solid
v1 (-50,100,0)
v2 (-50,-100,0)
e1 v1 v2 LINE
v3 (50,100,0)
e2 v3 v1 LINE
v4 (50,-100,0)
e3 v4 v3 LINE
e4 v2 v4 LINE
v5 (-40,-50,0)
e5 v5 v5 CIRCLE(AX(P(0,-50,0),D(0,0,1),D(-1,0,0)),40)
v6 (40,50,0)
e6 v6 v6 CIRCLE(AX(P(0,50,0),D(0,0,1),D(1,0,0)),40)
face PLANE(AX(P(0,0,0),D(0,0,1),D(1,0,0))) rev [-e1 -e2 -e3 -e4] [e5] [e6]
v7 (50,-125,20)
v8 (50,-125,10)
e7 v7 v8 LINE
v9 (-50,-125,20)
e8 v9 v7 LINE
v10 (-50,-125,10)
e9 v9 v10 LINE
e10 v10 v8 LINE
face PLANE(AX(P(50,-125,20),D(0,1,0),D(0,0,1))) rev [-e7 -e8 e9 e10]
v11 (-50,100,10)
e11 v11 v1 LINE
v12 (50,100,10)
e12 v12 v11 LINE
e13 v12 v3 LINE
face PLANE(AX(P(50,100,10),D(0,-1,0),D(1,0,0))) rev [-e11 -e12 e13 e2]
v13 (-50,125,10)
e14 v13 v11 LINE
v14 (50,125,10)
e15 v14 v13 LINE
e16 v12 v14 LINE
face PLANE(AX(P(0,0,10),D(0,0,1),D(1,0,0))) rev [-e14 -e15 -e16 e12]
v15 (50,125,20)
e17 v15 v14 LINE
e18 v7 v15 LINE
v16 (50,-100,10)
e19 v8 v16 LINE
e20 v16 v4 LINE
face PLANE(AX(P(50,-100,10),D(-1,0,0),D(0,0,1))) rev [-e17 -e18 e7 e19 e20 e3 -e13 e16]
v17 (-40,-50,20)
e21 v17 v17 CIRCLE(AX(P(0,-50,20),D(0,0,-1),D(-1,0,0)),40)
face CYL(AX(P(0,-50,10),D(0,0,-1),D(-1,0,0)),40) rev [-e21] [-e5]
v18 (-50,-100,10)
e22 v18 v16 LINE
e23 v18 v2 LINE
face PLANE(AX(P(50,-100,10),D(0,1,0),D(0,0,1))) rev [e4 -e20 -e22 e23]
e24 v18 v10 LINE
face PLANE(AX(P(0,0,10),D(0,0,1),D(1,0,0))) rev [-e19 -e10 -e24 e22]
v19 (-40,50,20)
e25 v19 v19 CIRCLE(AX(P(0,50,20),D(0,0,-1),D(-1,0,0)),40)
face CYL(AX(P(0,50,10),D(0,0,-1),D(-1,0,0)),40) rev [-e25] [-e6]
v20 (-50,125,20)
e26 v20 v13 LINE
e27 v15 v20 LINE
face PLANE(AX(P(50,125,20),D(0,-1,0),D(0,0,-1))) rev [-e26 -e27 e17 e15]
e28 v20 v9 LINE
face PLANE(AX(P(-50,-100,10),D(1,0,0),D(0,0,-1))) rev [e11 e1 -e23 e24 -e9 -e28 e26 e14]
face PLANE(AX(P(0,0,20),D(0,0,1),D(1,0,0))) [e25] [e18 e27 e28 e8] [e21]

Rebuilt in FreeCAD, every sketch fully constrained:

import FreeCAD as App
import Part
import Sketcher

V = App.Vector
Q = App.Units.Quantity

doc = App.newDocument("Part")
body = doc.addObject("PartDesign::Body", "Body")

sketch1 = body.newObject("Sketcher::SketchObject", "Sketch")
sketch1.AttachmentSupport = (doc.getObject("XY_Plane"), [""])
sketch1.MapMode = "FlatFace"
sketch1.addGeometry([
    Part.LineSegment(V(-50, 100, 0), V(-50, -100, 0)),
    Part.LineSegment(V(-50, -100, 0), V(50, -100, 0)),
    Part.LineSegment(V(50, -100, 0), V(50, 100, 0)),
    Part.LineSegment(V(50, 100, 0), V(-50, 100, 0)),
    Part.Circle(V(0, -50, 0), V(0, 0, 1), 40),
    Part.Circle(V(0, 50, 0), V(0, 0, 1), 40),
], False)
sketch1.addConstraint([
    Sketcher.Constraint("Coincident", 0, 2, 1, 1),
    Sketcher.Constraint("Coincident", 1, 2, 2, 1),
    Sketcher.Constraint("Coincident", 2, 2, 3, 1),
    Sketcher.Constraint("Coincident", 3, 2, 0, 1),
    Sketcher.Constraint("Vertical", 0),
    Sketcher.Constraint("Horizontal", 1),
    Sketcher.Constraint("Vertical", 2),
    Sketcher.Constraint("Horizontal", 3),
    Sketcher.Constraint("Equal", 4, 5),
    Sketcher.Constraint("Symmetric", 4, 3, 5, 3, -1, 1),
    Sketcher.Constraint("Symmetric", 0, 2, 2, 2, -1, 1),
    Sketcher.Constraint("PointOnObject", 4, 3, -2),
    Sketcher.Constraint("Diameter", 4, Q("80 mm")),
    Sketcher.Constraint("DistanceX", 1, 1, 1, 2, Q("100 mm")),
    Sketcher.Constraint("DistanceY", 0, 2, 0, 1, Q("200 mm")),
    Sketcher.Constraint("DistanceY", 4, 3, -1, 1, Q("50 mm")),
])
pad1 = body.newObject("PartDesign::Pad", "Pad")
pad1.Profile = sketch1
pad1.Length = 10

sketch2 = body.newObject("Sketcher::SketchObject", "Sketch001")
sketch2.AttachmentSupport = (doc.getObject("XY_Plane"), [""])
sketch2.MapMode = "FlatFace"
sketch2.AttachmentOffset = App.Placement(V(0, 0, 10), App.Rotation())
sketch2.addGeometry([
    Part.LineSegment(V(-50, 125, 0), V(-50, -125, 0)),
    Part.LineSegment(V(-50, -125, 0), V(50, -125, 0)),
    Part.LineSegment(V(50, -125, 0), V(50, 125, 0)),
    Part.LineSegment(V(50, 125, 0), V(-50, 125, 0)),
], False)
sketch2.addConstraint([
    Sketcher.Constraint("Coincident", 0, 2, 1, 1),
    Sketcher.Constraint("Coincident", 1, 2, 2, 1),
    Sketcher.Constraint("Coincident", 2, 2, 3, 1),
    Sketcher.Constraint("Coincident", 3, 2, 0, 1),
    Sketcher.Constraint("Vertical", 0),
    Sketcher.Constraint("Horizontal", 1),
    Sketcher.Constraint("Vertical", 2),
    Sketcher.Constraint("Horizontal", 3),
    Sketcher.Constraint("Symmetric", 0, 2, 2, 2, -1, 1),
    Sketcher.Constraint("DistanceX", 1, 1, 1, 2, Q("100 mm")),
    Sketcher.Constraint("DistanceY", 0, 2, 0, 1, Q("250 mm")),
])
pad2 = body.newObject("PartDesign::Pad", "Pad001")
pad2.Profile = sketch2
pad2.Length = 10

sketch3 = body.newObject("Sketcher::SketchObject", "Sketch002")
sketch3.AttachmentSupport = (doc.getObject("XY_Plane"), [""])
sketch3.MapMode = "FlatFace"
sketch3.AttachmentOffset = App.Placement(V(0, 0, 10), App.Rotation())
sketch3.addGeometry([
    Part.Circle(V(0, 50, 0), V(0, 0, 1), 40),
    Part.Circle(V(0, -50, 0), V(0, 0, 1), 40),
], False)
sketch3.addConstraint([
    Sketcher.Constraint("Equal", 0, 1),
    Sketcher.Constraint("Symmetric", 0, 3, 1, 3, -1, 1),
    Sketcher.Constraint("PointOnObject", 0, 3, -2),
    Sketcher.Constraint("Diameter", 0, Q("80 mm")),
    Sketcher.Constraint("DistanceY", -1, 1, 0, 3, Q("50 mm")),
])
pocket1 = body.newObject("PartDesign::Pocket", "Pocket")
pocket1.Profile = sketch3
pocket1.Type = "ThroughAll"
pocket1.Reversed = True

doc.recompute()
